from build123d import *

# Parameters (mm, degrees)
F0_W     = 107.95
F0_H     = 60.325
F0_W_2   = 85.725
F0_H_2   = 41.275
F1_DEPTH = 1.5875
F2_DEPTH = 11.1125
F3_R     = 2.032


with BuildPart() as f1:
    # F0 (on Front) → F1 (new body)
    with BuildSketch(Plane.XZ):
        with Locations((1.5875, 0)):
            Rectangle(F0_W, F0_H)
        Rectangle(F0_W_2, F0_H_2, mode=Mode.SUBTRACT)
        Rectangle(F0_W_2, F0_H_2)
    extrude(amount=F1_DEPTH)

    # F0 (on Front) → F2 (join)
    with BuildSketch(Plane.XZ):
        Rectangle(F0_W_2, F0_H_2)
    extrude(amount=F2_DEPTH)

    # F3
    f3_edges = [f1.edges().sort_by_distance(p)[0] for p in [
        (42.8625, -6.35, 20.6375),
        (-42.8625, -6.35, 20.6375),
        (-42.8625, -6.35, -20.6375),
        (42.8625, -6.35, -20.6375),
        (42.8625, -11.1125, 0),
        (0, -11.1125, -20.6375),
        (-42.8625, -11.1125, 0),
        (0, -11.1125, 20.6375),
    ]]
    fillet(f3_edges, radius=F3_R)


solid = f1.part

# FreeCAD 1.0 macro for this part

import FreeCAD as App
import Part
import Sketcher
from FreeCAD import Vector
Q = App.Units.Quantity


def edges_at(feature, points):
    """Names of the edges that pass closest to the given points."""
    edges = feature.Shape.Edges
    near = lambda p: min(range(len(edges)), key=lambda i: edges[i].distToShape(Part.Vertex(*p))[0])
    return sorted({f"Edge{near(p) + 1}" for p in points})


def add_polygon(sketch, points):
    """Adds a closed chain of lines whose ends are joined by coincident constraints."""
    first, n = sketch.GeometryCount, len(points)
    for a, b in zip(points, points[1:] + points[:1]):
        sketch.addGeometry(Part.LineSegment(App.Vector(*a, 0), App.Vector(*b, 0)), False)
    for i in range(n):
        sketch.addConstraint(Sketcher.Constraint("Coincident", first + i, 2, first + (i + 1) % n, 1))

doc = App.newDocument("Part")
body = doc.addObject("PartDesign::Body", "Body")

sketch1 = doc.addObject("Sketcher::SketchObject", "Sketch")
body.addObject(sketch1)
sketch1.AttachmentSupport = (doc.XZ_Plane, [""])
sketch1.MapMode = "FlatFace"
add_polygon(sketch1, [(-52, 30), (-52, -30), (56, -30), (56, 30)])
sketch1.addConstraint([
    Sketcher.Constraint("Vertical", 0),
    Sketcher.Constraint("Horizontal", 1),
    Sketcher.Constraint("Vertical", 2),
    Sketcher.Constraint("Horizontal", 3),
    Sketcher.Constraint("DistanceX", 1, 1, 1, 2, Q("4.25 in")),
    Sketcher.Constraint("DistanceY", 0, 2, 0, 1, Q("2.375 in")),
    Sketcher.Constraint("DistanceX", 0, 2, -1, 1, Q("2.0625 in")),
    Sketcher.Constraint("DistanceY", 0, 2, -1, 1, Q("1.1875 in")),
])
pad1 = doc.addObject("PartDesign::Pad", "Pad")
body.addObject(pad1)
pad1.Profile = sketch1
pad1.Length = Q("0.0625 in")

sketch2 = doc.addObject("Sketcher::SketchObject", "Sketch001")
body.addObject(sketch2)
sketch2.AttachmentSupport = (doc.XZ_Plane, [""])
sketch2.MapMode = "FlatFace"
add_polygon(sketch2, [(-43, 21), (-43, -21), (43, -21), (43, 21)])
sketch2.addConstraint([
    Sketcher.Constraint("Vertical", 0),
    Sketcher.Constraint("Horizontal", 1),
    Sketcher.Constraint("Vertical", 2),
    Sketcher.Constraint("Horizontal", 3),
    Sketcher.Constraint("Symmetric", 0, 2, 2, 2, -1, 1),
    Sketcher.Constraint("DistanceX", 1, 1, 1, 2, Q("3.375 in")),
    Sketcher.Constraint("DistanceY", 0, 2, 0, 1, Q("1.625 in")),
])
pad2 = doc.addObject("PartDesign::Pad", "Pad001")
body.addObject(pad2)
pad2.Profile = sketch2
pad2.Length = Q("0.4375 in")
doc.recompute()

fillet = doc.addObject("PartDesign::Fillet", "Fillet")
body.addObject(fillet)
fillet.Base = (pad2, edges_at(pad2, [
    (42.862, -6.35, 20.637),
    (-42.862, -6.35, 20.637),
    (-42.862, -6.35, -20.637),
    (42.862, -6.35, -20.637),
    (42.862, -11.113, 0),
    (0, -11.113, -20.637),
    (-42.862, -11.113, 0),
    (0, -11.113, 20.637),
]))
fillet.Radius = Q("0.08 in")

doc.recompute()
